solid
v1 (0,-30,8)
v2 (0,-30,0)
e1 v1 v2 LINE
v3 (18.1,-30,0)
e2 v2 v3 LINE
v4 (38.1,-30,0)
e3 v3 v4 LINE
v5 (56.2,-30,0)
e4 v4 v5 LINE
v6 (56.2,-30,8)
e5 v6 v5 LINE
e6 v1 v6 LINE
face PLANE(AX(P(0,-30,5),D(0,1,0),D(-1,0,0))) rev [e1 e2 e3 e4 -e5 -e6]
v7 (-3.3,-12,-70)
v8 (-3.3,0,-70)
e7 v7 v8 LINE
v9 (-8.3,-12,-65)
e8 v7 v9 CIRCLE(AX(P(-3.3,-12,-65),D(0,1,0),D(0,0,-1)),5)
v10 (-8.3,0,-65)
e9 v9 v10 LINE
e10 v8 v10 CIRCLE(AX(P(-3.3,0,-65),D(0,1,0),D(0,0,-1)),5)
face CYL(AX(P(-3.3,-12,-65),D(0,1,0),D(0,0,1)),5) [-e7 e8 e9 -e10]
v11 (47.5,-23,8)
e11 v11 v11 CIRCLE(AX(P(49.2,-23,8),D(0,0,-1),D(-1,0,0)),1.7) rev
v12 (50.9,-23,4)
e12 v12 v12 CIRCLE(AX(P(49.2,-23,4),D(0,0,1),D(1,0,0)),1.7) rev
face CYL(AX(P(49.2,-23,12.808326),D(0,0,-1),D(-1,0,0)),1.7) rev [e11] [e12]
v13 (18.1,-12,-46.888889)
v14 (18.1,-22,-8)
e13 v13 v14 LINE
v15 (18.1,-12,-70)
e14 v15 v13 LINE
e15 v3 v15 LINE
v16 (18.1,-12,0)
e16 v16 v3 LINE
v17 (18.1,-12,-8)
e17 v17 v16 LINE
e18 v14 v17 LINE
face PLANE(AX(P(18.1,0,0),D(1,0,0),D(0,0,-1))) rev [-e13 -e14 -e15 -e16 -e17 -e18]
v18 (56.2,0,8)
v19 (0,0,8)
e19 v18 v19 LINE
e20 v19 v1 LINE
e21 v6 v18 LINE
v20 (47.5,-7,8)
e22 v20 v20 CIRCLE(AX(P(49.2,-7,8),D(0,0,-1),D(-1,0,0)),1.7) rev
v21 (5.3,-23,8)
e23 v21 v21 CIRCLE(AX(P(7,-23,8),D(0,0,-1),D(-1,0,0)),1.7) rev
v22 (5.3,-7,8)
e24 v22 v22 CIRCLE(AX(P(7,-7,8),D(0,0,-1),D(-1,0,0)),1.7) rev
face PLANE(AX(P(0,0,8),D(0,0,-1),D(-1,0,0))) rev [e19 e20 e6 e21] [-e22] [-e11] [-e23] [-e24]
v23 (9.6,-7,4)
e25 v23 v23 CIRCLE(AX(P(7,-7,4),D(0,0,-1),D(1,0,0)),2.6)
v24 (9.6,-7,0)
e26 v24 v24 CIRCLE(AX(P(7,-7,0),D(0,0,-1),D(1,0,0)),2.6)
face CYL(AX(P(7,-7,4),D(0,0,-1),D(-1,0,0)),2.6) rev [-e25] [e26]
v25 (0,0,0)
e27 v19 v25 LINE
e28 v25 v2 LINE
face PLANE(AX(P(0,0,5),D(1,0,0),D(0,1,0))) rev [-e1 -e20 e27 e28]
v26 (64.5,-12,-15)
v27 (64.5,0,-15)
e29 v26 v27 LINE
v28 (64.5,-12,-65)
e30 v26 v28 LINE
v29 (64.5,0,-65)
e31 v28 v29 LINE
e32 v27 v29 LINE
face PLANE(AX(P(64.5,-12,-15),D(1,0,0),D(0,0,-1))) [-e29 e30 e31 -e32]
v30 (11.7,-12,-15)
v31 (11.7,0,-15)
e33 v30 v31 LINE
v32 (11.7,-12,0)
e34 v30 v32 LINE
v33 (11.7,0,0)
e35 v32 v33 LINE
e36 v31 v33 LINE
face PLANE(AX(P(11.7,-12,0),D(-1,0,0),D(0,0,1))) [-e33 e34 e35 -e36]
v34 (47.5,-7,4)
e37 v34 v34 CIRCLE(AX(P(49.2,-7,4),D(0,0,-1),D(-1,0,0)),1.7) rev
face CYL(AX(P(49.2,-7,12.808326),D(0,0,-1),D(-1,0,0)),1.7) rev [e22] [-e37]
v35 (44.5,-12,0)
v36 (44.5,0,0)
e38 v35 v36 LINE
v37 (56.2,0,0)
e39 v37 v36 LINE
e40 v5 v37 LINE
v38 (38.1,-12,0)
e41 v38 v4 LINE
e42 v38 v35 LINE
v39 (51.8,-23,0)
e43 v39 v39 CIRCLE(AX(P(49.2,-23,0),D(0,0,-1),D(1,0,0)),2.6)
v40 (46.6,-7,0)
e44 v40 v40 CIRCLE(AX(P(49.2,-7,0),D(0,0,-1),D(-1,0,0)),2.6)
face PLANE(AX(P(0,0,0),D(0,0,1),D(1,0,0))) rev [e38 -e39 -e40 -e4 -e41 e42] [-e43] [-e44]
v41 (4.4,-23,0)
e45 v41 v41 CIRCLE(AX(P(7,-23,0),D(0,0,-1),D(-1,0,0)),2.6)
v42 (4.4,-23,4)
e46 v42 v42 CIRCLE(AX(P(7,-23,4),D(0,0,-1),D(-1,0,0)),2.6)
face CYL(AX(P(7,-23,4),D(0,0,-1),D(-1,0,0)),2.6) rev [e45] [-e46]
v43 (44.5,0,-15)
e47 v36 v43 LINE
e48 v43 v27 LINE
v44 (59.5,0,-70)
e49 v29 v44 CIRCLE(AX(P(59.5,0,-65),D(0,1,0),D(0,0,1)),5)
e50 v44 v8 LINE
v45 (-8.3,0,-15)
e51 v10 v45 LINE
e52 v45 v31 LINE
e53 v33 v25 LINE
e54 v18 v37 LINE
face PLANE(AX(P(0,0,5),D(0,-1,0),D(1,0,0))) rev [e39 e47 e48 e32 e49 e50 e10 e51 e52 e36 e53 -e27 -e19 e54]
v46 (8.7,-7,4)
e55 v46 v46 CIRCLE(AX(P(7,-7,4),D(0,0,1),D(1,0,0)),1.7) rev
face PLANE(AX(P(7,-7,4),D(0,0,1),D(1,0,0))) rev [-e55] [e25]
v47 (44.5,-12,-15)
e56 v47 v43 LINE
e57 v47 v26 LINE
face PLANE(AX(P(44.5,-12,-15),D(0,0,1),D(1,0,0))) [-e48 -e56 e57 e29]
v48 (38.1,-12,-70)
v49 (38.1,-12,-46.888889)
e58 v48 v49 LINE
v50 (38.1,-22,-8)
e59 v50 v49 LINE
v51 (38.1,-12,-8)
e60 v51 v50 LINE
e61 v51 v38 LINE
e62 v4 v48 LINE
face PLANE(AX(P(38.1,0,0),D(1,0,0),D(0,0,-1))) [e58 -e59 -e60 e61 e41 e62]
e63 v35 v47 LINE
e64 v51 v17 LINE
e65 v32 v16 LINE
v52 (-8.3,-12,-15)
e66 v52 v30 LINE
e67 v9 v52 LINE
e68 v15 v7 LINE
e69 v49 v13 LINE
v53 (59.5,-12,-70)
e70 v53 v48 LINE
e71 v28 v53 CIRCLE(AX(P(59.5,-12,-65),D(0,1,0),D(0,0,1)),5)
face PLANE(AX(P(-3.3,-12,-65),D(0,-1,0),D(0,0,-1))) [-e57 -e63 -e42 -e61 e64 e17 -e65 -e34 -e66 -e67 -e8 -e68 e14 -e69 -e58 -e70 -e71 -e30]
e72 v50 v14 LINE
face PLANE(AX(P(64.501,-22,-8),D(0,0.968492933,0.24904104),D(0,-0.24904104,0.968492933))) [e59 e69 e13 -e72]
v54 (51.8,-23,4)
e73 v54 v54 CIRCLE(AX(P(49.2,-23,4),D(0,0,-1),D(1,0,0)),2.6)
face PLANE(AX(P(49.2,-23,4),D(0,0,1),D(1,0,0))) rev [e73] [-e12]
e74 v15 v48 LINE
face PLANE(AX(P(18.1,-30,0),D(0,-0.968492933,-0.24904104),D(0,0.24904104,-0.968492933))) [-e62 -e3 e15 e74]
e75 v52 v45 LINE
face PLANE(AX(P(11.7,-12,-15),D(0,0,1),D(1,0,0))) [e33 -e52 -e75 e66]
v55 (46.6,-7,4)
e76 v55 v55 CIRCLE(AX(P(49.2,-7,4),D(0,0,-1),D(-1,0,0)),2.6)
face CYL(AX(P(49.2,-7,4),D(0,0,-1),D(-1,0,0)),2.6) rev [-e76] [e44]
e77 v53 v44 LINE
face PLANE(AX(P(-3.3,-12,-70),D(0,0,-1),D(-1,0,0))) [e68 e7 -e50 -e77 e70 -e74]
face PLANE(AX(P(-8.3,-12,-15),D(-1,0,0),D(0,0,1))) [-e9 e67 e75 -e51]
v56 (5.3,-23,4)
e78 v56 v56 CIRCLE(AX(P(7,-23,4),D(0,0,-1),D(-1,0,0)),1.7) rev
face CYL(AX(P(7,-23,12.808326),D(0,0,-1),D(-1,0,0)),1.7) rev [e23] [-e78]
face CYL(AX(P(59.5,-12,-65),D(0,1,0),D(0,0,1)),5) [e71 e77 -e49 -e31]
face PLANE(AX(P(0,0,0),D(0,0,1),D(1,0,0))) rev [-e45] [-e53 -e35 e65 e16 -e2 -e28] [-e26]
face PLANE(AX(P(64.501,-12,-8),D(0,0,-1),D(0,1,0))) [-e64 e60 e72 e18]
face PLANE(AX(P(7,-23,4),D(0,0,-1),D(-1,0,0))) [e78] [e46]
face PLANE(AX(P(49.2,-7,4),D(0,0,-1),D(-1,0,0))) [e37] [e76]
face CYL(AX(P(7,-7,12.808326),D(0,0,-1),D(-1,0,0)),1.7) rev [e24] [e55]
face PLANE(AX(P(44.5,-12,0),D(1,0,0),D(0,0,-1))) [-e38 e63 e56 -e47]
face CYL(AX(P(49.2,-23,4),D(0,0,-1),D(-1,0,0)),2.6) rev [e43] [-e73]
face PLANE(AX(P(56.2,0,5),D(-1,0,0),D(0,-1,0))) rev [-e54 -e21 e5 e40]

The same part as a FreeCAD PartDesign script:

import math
import FreeCAD as App
import Part
import Sketcher

V = App.Vector
Q = App.Units.Quantity

doc = App.newDocument("Part")
body = doc.addObject("PartDesign::Body", "Body")

# Sketch on XY plane
sketch1 = body.newObject("Sketcher::SketchObject", "Sketch")
sketch1.AttachmentSupport = (doc.getObject("XY_Plane"), [""])
sketch1.MapMode = "FlatFace"
sketch1.addGeometry(Part.LineSegment(V(0, 0, 0), V(0, -30, 0)), False)
sketch1.addGeometry(Part.LineSegment(V(0, -30, 0), V(56.2, -30, 0)), False)
sketch1.addGeometry(Part.LineSegment(V(56.2, -30, 0), V(56.2, 0, 0)), False)
sketch1.addGeometry(Part.LineSegment(V(56.2, 0, 0), V(0, 0, 0)), False)
sketch1.addConstraint(Sketcher.Constraint("Coincident", 0, 2, 1, 1))
sketch1.addConstraint(Sketcher.Constraint("Coincident", 1, 2, 2, 1))
sketch1.addConstraint(Sketcher.Constraint("Coincident", 2, 2, 3, 1))
sketch1.addConstraint(Sketcher.Constraint("Coincident", 3, 2, 0, 1))
sketch1.addConstraint(Sketcher.Constraint("Vertical", 0))
sketch1.addConstraint(Sketcher.Constraint("Horizontal", 1))
sketch1.addConstraint(Sketcher.Constraint("Vertical", 2))
sketch1.addConstraint(Sketcher.Constraint("Horizontal", 3))
sketch1.addConstraint(Sketcher.Constraint("Coincident", 3, 2, -1, 1))
sketch1.addConstraint(Sketcher.Constraint("DistanceY", 0, 2, 0, 1, Q("30 mm")))
sketch1.addConstraint(Sketcher.Constraint("DistanceX", 1, 1, 1, 2, Q("56.2 mm")))
pad1 = body.newObject("PartDesign::Pad", "Pad")
pad1.Profile = sketch1
pad1.Length = 5

# Sketch on XY plane
sketch2 = body.newObject("Sketcher::SketchObject", "Sketch001")
sketch2.AttachmentSupport = (doc.getObject("XY_Plane"), [""])
sketch2.MapMode = "FlatFace"
sketch2.AttachmentOffset = App.Placement(V(0, 0, 5), App.Rotation())
sketch2.addGeometry(Part.LineSegment(V(0, 0, 0), V(0, -30, 0)), False)
sketch2.addGeometry(Part.LineSegment(V(0, -30, 0), V(56.2, -30, 0)), False)
sketch2.addGeometry(Part.LineSegment(V(56.2, -30, 0), V(56.2, 0, 0)), False)
sketch2.addGeometry(Part.LineSegment(V(56.2, 0, 0), V(0, 0, 0)), False)
sketch2.addConstraint(Sketcher.Constraint("Coincident", 0, 2, 1, 1))
sketch2.addConstraint(Sketcher.Constraint("Coincident", 1, 2, 2, 1))
sketch2.addConstraint(Sketcher.Constraint("Coincident", 2, 2, 3, 1))
sketch2.addConstraint(Sketcher.Constraint("Coincident", 3, 2, 0, 1))
sketch2.addConstraint(Sketcher.Constraint("Vertical", 0))
sketch2.addConstraint(Sketcher.Constraint("Horizontal", 1))
sketch2.addConstraint(Sketcher.Constraint("Vertical", 2))
sketch2.addConstraint(Sketcher.Constraint("Horizontal", 3))
sketch2.addConstraint(Sketcher.Constraint("Coincident", 3, 2, -1, 1))
sketch2.addConstraint(Sketcher.Constraint("DistanceY", 0, 2, 0, 1, Q("30 mm")))
sketch2.addConstraint(Sketcher.Constraint("DistanceX", 1, 1, 1, 2, Q("56.2 mm")))
pad2 = body.newObject("PartDesign::Pad", "Pad001")
pad2.Profile = sketch2
pad2.Length = 3

# Sketch on XY plane
sketch3 = body.newObject("Sketcher::SketchObject", "Sketch002")
sketch3.AttachmentSupport = (doc.getObject("XY_Plane"), [""])
sketch3.MapMode = "FlatFace"
sketch3.addGeometry(Part.Circle(V(49.2, -7, 0), V(0, 0, 1), 1.7), False)
sketch3.addGeometry(Part.Circle(V(7, -7, 0), V(0, 0, 1), 1.7), False)
sketch3.addGeometry(Part.Circle(V(7, -23, 0), V(0, 0, 1), 1.7), False)
sketch3.addGeometry(Part.Circle(V(49.2, -23, 0), V(0, 0, 1), 1.7), False)
sketch3.addConstraint(Sketcher.Constraint("Equal", 0, 1))
sketch3.addConstraint(Sketcher.Constraint("Equal", 1, 2))
sketch3.addConstraint(Sketcher.Constraint("Equal", 2, 3))
sketch3.addConstraint(Sketcher.Constraint("Horizontal", 0, 3, 1, 3))
sketch3.addConstraint(Sketcher.Constraint("Horizontal", 2, 3, 3, 3))
sketch3.addConstraint(Sketcher.Constraint("Vertical", 1, 3, 2, 3))
sketch3.addConstraint(Sketcher.Constraint("Vertical", 0, 3, 3, 3))
sketch3.addConstraint(Sketcher.Constraint("Diameter", 0, Q("3.4 mm")))
sketch3.addConstraint(Sketcher.Constraint("DistanceY", 0, 3, -1, 1, Q("7 mm")))
sketch3.addConstraint(Sketcher.Constraint("DistanceX", -1, 1, 1, 3, Q("7 mm")))
sketch3.addConstraint(Sketcher.Constraint("DistanceY", 2, 3, -1, 1, Q("23 mm")))
sketch3.addConstraint(Sketcher.Constraint("DistanceX", -1, 1, 0, 3, Q("49.2 mm")))
pocket1 = body.newObject("PartDesign::Pocket", "Pocket")
pocket1.Profile = sketch3
pocket1.Length = 8
pocket1.Reversed = True

# Sketch on XZ plane
sketch4 = body.newObject("Sketcher::SketchObject", "Sketch003")
sketch4.AttachmentSupport = (doc.getObject("XZ_Plane"), [""])
sketch4.MapMode = "FlatFace"
sketch4.addGeometry(Part.LineSegment(V(11.7, 0, 0), V(44.5, 0, 0)), False)
sketch4.addGeometry(Part.LineSegment(V(44.5, 0, 0), V(44.5, -15, 0)), False)
sketch4.addGeometry(Part.LineSegment(V(44.5, -15, 0), V(64.5, -15, 0)), False)
sketch4.addGeometry(Part.LineSegment(V(64.5, -15, 0), V(64.5, -65, 0)), False)
sketch4.addGeometry(Part.ArcOfCircle(Part.Circle(V(59.5, -65, 0), V(0, 0, 1), 5), math.radians(-90), math.radians(0)), False)
sketch4.addGeometry(Part.LineSegment(V(59.5, -70, 0), V(-3.3, -70, 0)), False)
sketch4.addGeometry(Part.ArcOfCircle(Part.Circle(V(-3.3, -65, 0), V(0, 0, 1), 5), math.radians(180), math.radians(270)), False)
sketch4.addGeometry(Part.LineSegment(V(-8.3, -65, 0), V(-8.3, -15, 0)), False)
sketch4.addGeometry(Part.LineSegment(V(-8.3, -15, 0), V(11.7, -15, 0)), False)
sketch4.addGeometry(Part.LineSegment(V(11.7, -15, 0), V(11.7, 0, 0)), False)
sketch4.addConstraint(Sketcher.Constraint("Coincident", 0, 2, 1, 1))
sketch4.addConstraint(Sketcher.Constraint("Coincident", 1, 2, 2, 1))
sketch4.addConstraint(Sketcher.Constraint("Coincident", 2, 2, 3, 1))
sketch4.addConstraint(Sketcher.Constraint("Tangent", 3, 2, 4, 2))
sketch4.addConstraint(Sketcher.Constraint("Tangent", 4, 1, 5, 1))
sketch4.addConstraint(Sketcher.Constraint("Tangent", 5, 2, 6, 2))
sketch4.addConstraint(Sketcher.Constraint("Tangent", 6, 1, 7, 1))
sketch4.addConstraint(Sketcher.Constraint("Coincident", 7, 2, 8, 1))
sketch4.addConstraint(Sketcher.Constraint("Coincident", 8, 2, 9, 1))
sketch4.addConstraint(Sketcher.Constraint("Coincident", 9, 2, 0, 1))
sketch4.addConstraint(Sketcher.Constraint("Horizontal", 0))
sketch4.addConstraint(Sketcher.Constraint("Vertical", 1))
sketch4.addConstraint(Sketcher.Constraint("Horizontal", 2))
sketch4.addConstraint(Sketcher.Constraint("Vertical", 3))
sketch4.addConstraint(Sketcher.Constraint("Horizontal", 5))
sketch4.addConstraint(Sketcher.Constraint("Vertical", 7))
sketch4.addConstraint(Sketcher.Constraint("Horizontal", 8))
sketch4.addConstraint(Sketcher.Constraint("Vertical", 9))
sketch4.addConstraint(Sketcher.Constraint("Equal", 4, 6))
sketch4.addConstraint(Sketcher.Constraint("PointOnObject", 0, 2, -1))
sketch4.addConstraint(Sketcher.Constraint("Horizontal", 2, 2, 7, 2))
sketch4.addConstraint(Sketcher.Constraint("Equal", 2, 8))
sketch4.addConstraint(Sketcher.Constraint("Radius", 4, Q("5 mm")))
sketch4.addConstraint(Sketcher.Constraint("DistanceX", 2, 1, 2, 2, Q("20 mm")))
sketch4.addConstraint(Sketcher.Constraint("DistanceY", 1, 2, 1, 1, Q("15 mm")))
sketch4.addConstraint(Sketcher.Constraint("DistanceY", 3, 2, 3, 1, Q("50 mm")))
sketch4.addConstraint(Sketcher.Constraint("DistanceX", 0, 1, 0, 2, Q("32.8 mm")))
sketch4.addConstraint(Sketcher.Constraint("DistanceX", -1, 1, 4, 3, Q("59.5 mm")))
pad3 = body.newObject("PartDesign::Pad", "Pad002")
pad3.Profile = sketch4
pad3.Length = 12

# Sketch on YZ plane
sketch5 = body.newObject("Sketcher::SketchObject", "Sketch004")
sketch5.AttachmentSupport = (doc.getObject("YZ_Plane"), [""])
sketch5.MapMode = "FlatFace"
sketch5.AttachmentOffset = App.Placement(V(0, 0, 28.1), App.Rotation())
sketch5.addGeometry(Part.LineSegment(V(-12, 0, 0), V(-30, 0, 0)), False)
sketch5.addGeometry(Part.LineSegment(V(-30, 0, 0), V(-12, -70, 0)), False)
sketch5.addGeometry(Part.LineSegment(V(-12, -70, 0), V(-12, 0, 0)), False)
sketch5.addConstraint(Sketcher.Constraint("Coincident", 0, 2, 1, 1))
sketch5.addConstraint(Sketcher.Constraint("Coincident", 1, 2, 2, 1))
sketch5.addConstraint(Sketcher.Constraint("Coincident", 2, 2, 0, 1))
sketch5.addConstraint(Sketcher.Constraint("Horizontal", 0))
sketch5.addConstraint(Sketcher.Constraint("Vertical", 2))
sketch5.addConstraint(Sketcher.Constraint("PointOnObject", 0, 2, -1))
sketch5.addConstraint(Sketcher.Constraint("DistanceX", 0, 2, 0, 1, Q("18 mm")))
sketch5.addConstraint(Sketcher.Constraint("DistanceY", 2, 1, 2, 2, Q("70 mm")))
sketch5.addConstraint(Sketcher.Constraint("DistanceX", 0, 2, -1, 1, Q("30 mm")))
pad4 = body.newObject("PartDesign::Pad", "Pad003")
pad4.Profile = sketch5
pad4.Type = "TwoLengths"
pad4.Length = 10
pad4.Length2 = 10

# Sketch on YZ plane
sketch6 = body.newObject("Sketcher::SketchObject", "Sketch005")
sketch6.AttachmentSupport = (doc.getObject("YZ_Plane"), [""])
sketch6.MapMode = "FlatFace"
sketch6.AttachmentOffset = App.Placement(V(0, 0, 28.1), App.Rotation())
sketch6.addGeometry(Part.LineSegment(V(-12, -8, 0), V(-22, -8, 0)), False)
sketch6.addGeometry(Part.LineSegment(V(-22, -8, 0), V(-12, -46.888889, 0)), False)
sketch6.addGeometry(Part.LineSegment(V(-12, -46.888889, 0), V(-12, -8, 0)), False)
sketch6.addConstraint(Sketcher.Constraint("Coincident", 0, 2, 1, 1))
sketch6.addConstraint(Sketcher.Constraint("Coincident", 1, 2, 2, 1))
sketch6.addConstraint(Sketcher.Constraint("Coincident", 2, 2, 0, 1))
sketch6.addConstraint(Sketcher.Constraint("Horizontal", 0))
sketch6.addConstraint(Sketcher.Constraint("Vertical", 2))
sketch6.addConstraint(Sketcher.Constraint("DistanceX", 0, 2, 0, 1, Q("10 mm")))
sketch6.addConstraint(Sketcher.Constraint("DistanceX", 0, 2, -1, 1, Q("22 mm")))
sketch6.addConstraint(Sketcher.Constraint("DistanceY", 0, 2, -1, 1, Q("8 mm")))
sketch6.addConstraint(Sketcher.Constraint("DistanceY", 2, 1, 2, 2, Q("38.888889 mm")))
pocket2 = body.newObject("PartDesign::Pocket", "Pocket001")
pocket2.Profile = sketch6
pocket2.Type = "UpToFirst"

# Sketch on YZ plane
sketch7 = body.newObject("Sketcher::SketchObject", "Sketch006")
sketch7.AttachmentSupport = (doc.getObject("YZ_Plane"), [""])
sketch7.MapMode = "FlatFace"
sketch7.AttachmentOffset = App.Placement(V(0, 0, 28.1), App.Rotation())
sketch7.addGeometry(Part.LineSegment(V(-12, -8, 0), V(-22, -8, 0)), False)
sketch7.addGeometry(Part.LineSegment(V(-22, -8, 0), V(-12, -46.888889, 0)), False)
sketch7.addGeometry(Part.LineSegment(V(-12, -46.888889, 0), V(-12, -8, 0)), False)
sketch7.addConstraint(Sketcher.Constraint("Coincident", 0, 2, 1, 1))
sketch7.addConstraint(Sketcher.Constraint("Coincident", 1, 2, 2, 1))
sketch7.addConstraint(Sketcher.Constraint("Coincident", 2, 2, 0, 1))
sketch7.addConstraint(Sketcher.Constraint("Horizontal", 0))
sketch7.addConstraint(Sketcher.Constraint("Vertical", 2))
sketch7.addConstraint(Sketcher.Constraint("DistanceX", 0, 2, 0, 1, Q("10 mm")))
sketch7.addConstraint(Sketcher.Constraint("DistanceX", 0, 2, -1, 1, Q("22 mm")))
sketch7.addConstraint(Sketcher.Constraint("DistanceY", 0, 2, -1, 1, Q("8 mm")))
sketch7.addConstraint(Sketcher.Constraint("DistanceY", 2, 1, 2, 2, Q("38.888889 mm")))
pocket3 = body.newObject("PartDesign::Pocket", "Pocket002")
pocket3.Profile = sketch7
pocket3.Type = "UpToFirst"
pocket3.Reversed = True

# Sketch on XY plane
sketch8 = body.newObject("Sketcher::SketchObject", "Sketch007")
sketch8.AttachmentSupport = (doc.getObject("XY_Plane"), [""])
sketch8.MapMode = "FlatFace"
sketch8.addGeometry(Part.Circle(V(49.2, -7, 0), V(0, 0, 1), 2.6), False)
sketch8.addGeometry(Part.Circle(V(7, -7, 0), V(0, 0, 1), 2.6), False)
sketch8.addGeometry(Part.Circle(V(7, -23, 0), V(0, 0, 1), 2.6), False)
sketch8.addGeometry(Part.Circle(V(49.2, -23, 0), V(0, 0, 1), 2.6), False)
sketch8.addConstraint(Sketcher.Constraint("Equal", 0, 1))
sketch8.addConstraint(Sketcher.Constraint("Equal", 1, 2))
sketch8.addConstraint(Sketcher.Constraint("Equal", 2, 3))
sketch8.addConstraint(Sketcher.Constraint("Horizontal", 0, 3, 1, 3))
sketch8.addConstraint(Sketcher.Constraint("Horizontal", 2, 3, 3, 3))
sketch8.addConstraint(Sketcher.Constraint("Vertical", 1, 3, 2, 3))
sketch8.addConstraint(Sketcher.Constraint("Vertical", 0, 3, 3, 3))
sketch8.addConstraint(Sketcher.Constraint("Diameter", 0, Q("5.2 mm")))
sketch8.addConstraint(Sketcher.Constraint("DistanceY", 0, 3, -1, 1, Q("7 mm")))
sketch8.addConstraint(Sketcher.Constraint("DistanceX", -1, 1, 1, 3, Q("7 mm")))
sketch8.addConstraint(Sketcher.Constraint("DistanceY", 2, 3, -1, 1, Q("23 mm")))
sketch8.addConstraint(Sketcher.Constraint("DistanceX", -1, 1, 0, 3, Q("49.2 mm")))
pocket4 = body.newObject("PartDesign::Pocket", "Pocket003")
pocket4.Profile = sketch8
pocket4.Length = 4
pocket4.Reversed = True

doc.recompute()
